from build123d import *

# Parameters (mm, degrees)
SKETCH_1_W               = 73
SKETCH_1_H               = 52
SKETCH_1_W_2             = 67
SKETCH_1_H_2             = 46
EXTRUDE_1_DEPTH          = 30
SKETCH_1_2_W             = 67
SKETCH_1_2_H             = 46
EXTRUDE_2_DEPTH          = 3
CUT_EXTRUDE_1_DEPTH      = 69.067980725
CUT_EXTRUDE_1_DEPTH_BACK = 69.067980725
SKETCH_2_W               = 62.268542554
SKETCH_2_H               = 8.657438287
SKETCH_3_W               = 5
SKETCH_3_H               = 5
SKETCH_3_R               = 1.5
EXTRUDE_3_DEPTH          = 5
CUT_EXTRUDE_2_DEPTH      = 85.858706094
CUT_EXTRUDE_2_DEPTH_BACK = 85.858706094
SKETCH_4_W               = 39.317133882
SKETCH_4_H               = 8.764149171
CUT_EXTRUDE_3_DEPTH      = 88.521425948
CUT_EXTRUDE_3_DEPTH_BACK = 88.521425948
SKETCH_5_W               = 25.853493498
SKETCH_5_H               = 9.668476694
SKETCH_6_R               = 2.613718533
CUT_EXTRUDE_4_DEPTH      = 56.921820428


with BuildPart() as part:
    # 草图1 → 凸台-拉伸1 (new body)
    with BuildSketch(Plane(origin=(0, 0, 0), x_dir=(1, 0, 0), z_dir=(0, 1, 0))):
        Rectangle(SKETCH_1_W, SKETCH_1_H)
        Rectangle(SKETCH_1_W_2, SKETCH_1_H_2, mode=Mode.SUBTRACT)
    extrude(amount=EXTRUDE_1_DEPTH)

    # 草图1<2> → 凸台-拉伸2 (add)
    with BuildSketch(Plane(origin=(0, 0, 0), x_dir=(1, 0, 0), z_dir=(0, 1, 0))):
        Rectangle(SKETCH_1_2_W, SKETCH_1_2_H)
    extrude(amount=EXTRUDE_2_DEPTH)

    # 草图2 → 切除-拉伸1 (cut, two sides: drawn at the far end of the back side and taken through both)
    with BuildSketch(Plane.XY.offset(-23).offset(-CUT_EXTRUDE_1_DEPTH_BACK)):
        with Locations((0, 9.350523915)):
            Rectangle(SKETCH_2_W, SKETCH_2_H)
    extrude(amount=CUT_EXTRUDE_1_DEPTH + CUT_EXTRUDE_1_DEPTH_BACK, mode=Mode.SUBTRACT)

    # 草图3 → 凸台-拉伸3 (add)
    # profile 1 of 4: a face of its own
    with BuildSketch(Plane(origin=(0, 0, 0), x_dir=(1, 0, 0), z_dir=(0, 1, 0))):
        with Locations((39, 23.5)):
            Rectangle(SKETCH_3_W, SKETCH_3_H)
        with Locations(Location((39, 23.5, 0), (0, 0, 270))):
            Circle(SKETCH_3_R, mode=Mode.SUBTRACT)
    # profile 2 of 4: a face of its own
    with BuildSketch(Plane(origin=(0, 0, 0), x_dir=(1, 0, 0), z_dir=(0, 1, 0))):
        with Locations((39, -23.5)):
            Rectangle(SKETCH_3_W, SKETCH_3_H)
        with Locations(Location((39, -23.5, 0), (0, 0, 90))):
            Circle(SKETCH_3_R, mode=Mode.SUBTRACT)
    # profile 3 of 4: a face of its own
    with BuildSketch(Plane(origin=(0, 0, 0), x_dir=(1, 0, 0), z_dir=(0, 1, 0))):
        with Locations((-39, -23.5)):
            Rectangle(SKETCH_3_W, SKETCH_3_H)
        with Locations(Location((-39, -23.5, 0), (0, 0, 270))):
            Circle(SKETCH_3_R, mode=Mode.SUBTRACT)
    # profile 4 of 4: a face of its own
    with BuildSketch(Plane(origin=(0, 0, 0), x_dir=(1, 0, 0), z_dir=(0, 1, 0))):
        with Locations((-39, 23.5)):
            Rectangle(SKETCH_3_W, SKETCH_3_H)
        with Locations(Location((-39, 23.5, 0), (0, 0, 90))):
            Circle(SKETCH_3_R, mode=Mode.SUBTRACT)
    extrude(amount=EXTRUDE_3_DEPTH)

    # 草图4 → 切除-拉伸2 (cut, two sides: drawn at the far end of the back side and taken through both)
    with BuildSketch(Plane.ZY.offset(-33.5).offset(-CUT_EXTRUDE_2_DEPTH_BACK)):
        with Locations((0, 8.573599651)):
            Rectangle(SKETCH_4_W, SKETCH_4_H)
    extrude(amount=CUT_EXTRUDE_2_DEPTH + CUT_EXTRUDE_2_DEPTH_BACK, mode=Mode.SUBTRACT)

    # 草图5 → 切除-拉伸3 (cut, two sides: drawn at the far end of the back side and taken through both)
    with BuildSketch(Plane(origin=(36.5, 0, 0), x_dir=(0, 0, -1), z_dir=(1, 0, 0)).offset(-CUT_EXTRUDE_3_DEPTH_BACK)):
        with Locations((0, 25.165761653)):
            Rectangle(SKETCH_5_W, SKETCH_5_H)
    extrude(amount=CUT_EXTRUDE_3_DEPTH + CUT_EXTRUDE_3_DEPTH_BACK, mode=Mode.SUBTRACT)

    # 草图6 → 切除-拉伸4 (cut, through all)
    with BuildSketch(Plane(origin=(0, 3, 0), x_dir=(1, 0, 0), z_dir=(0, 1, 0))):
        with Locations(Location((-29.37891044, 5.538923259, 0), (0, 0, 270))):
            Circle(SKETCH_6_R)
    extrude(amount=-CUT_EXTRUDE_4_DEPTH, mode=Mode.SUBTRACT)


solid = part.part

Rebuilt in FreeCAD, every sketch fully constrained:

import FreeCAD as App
import Part
import Sketcher

V = App.Vector
Q = App.Units.Quantity

doc = App.newDocument("Part")
body = doc.addObject("PartDesign::Body", "Body")

# Sketch on XZ plane
sketch1 = body.newObject("Sketcher::SketchObject", "Sketch")
sketch1.AttachmentSupport = (doc.getObject("XZ_Plane"), [""])
sketch1.MapMode = "FlatFace"
sketch1.addGeometry([
    Part.LineSegment(V(-36, -26, 0), V(-36, 26, 0)),  # 0
    Part.LineSegment(V(-36, 26, 0), V(36, 26, 0)),  # 1
    Part.LineSegment(V(36, 26, 0), V(36, -26, 0)),  # 2
    Part.LineSegment(V(36, -26, 0), V(-36, -26, 0)),  # 3
    Part.LineSegment(V(34, 23, 0), V(-34, 23, 0)),  # 4
    Part.LineSegment(V(-34, 23, 0), V(-34, -23, 0)),  # 5
    Part.LineSegment(V(-34, -23, 0), V(34, -23, 0)),  # 6
    Part.LineSegment(V(34, -23, 0), V(34, 23, 0)),  # 7
], False)
sketch1.addConstraint([
    Sketcher.Constraint("Coincident", 0, 2, 1, 1),
    Sketcher.Constraint("Coincident", 1, 2, 2, 1),
    Sketcher.Constraint("Coincident", 2, 2, 3, 1),
    Sketcher.Constraint("Coincident", 3, 2, 0, 1),
    Sketcher.Constraint("Coincident", 4, 2, 5, 1),
    Sketcher.Constraint("Coincident", 5, 2, 6, 1),
    Sketcher.Constraint("Coincident", 6, 2, 7, 1),
    Sketcher.Constraint("Coincident", 7, 2, 4, 1),
    Sketcher.Constraint("Vertical", 0),
    Sketcher.Constraint("Horizontal", 1),
    Sketcher.Constraint("Vertical", 2),
    Sketcher.Constraint("Horizontal", 3),
    Sketcher.Constraint("Horizontal", 4),
    Sketcher.Constraint("Vertical", 5),
    Sketcher.Constraint("Horizontal", 6),
    Sketcher.Constraint("Vertical", 7),
    Sketcher.Constraint("Symmetric", 0, 2, 2, 2, -1, 1),
    Sketcher.Constraint("Symmetric", 4, 2, 6, 2, -1, 1),
    Sketcher.Constraint("DistanceX", 1, 1, 1, 2, Q("73 mm")),
    Sketcher.Constraint("DistanceX", 4, 2, 4, 1, Q("67 mm")),
    Sketcher.Constraint("DistanceY", 0, 1, 0, 2, Q("52 mm")),
    Sketcher.Constraint("DistanceY", 5, 2, 5, 1, Q("46 mm")),
])
pad1 = body.newObject("PartDesign::Pad", "Pad")
pad1.Profile = sketch1
pad1.Length = 30
pad1.Reversed = True

# Sketch on XZ plane
sketch2 = body.newObject("Sketcher::SketchObject", "Sketch001")
sketch2.AttachmentSupport = (doc.getObject("XZ_Plane"), [""])
sketch2.MapMode = "FlatFace"
sketch2.addGeometry([
    Part.LineSegment(V(-34, -23, 0), V(-34, 23, 0)),
    Part.LineSegment(V(-34, 23, 0), V(34, 23, 0)),
    Part.LineSegment(V(34, 23, 0), V(34, -23, 0)),
    Part.LineSegment(V(34, -23, 0), V(-34, -23, 0)),
], False)
sketch2.addConstraint([
    Sketcher.Constraint("Coincident", 0, 2, 1, 1),
    Sketcher.Constraint("Coincident", 1, 2, 2, 1),
    Sketcher.Constraint("Coincident", 2, 2, 3, 1),
    Sketcher.Constraint("Coincident", 3, 2, 0, 1),
    Sketcher.Constraint("Vertical", 0),
    Sketcher.Constraint("Horizontal", 1),
    Sketcher.Constraint("Vertical", 2),
    Sketcher.Constraint("Horizontal", 3),
    Sketcher.Constraint("Symmetric", 0, 2, 2, 2, -1, 1),
    Sketcher.Constraint("DistanceX", 1, 1, 1, 2, Q("67 mm")),
    Sketcher.Constraint("DistanceY", 0, 1, 0, 2, Q("46 mm")),
])
pad2 = body.newObject("PartDesign::Pad", "Pad001")
pad2.Profile = sketch2
pad2.Length = 3
pad2.Reversed = True

# Sketch on XY plane
sketch3 = body.newObject("Sketcher::SketchObject", "Sketch002")
sketch3.AttachmentSupport = (doc.getObject("XY_Plane"), [""])
sketch3.MapMode = "FlatFace"
sketch3.AttachmentOffset = App.Placement(V(0, 0, -23), App.Rotation())
sketch3.addGeometry([
    Part.LineSegment(V(-31, 14, 0), V(-31, 5, 0)),
    Part.LineSegment(V(-31, 5, 0), V(31, 5, 0)),
    Part.LineSegment(V(31, 5, 0), V(31, 14, 0)),
    Part.LineSegment(V(31, 14, 0), V(-31, 14, 0)),
], False)
sketch3.addConstraint([
    Sketcher.Constraint("Coincident", 0, 2, 1, 1),
    Sketcher.Constraint("Coincident", 1, 2, 2, 1),
    Sketcher.Constraint("Coincident", 2, 2, 3, 1),
    Sketcher.Constraint("Coincident", 3, 2, 0, 1),
    Sketcher.Constraint("Vertical", 0),
    Sketcher.Constraint("Horizontal", 1),
    Sketcher.Constraint("Vertical", 2),
    Sketcher.Constraint("Horizontal", 3),
    Sketcher.Constraint("DistanceY", 0, 2, 0, 1, Q("8.657438 mm")),
    Sketcher.Constraint("DistanceX", 1, 1, 1, 2, Q("62.268543 mm")),
    Sketcher.Constraint("DistanceX", 0, 2, -1, 1, Q("31.134271 mm")),
    Sketcher.Constraint("DistanceY", -1, 1, 0, 2, Q("5.021805 mm")),
])
pocket1 = body.newObject("PartDesign::Pocket", "Pocket")
pocket1.Profile = sketch3
pocket1.Type = "ThroughAll"
pocket1.Midplane = True

# Sketch on XZ plane
sketch4 = body.newObject("Sketcher::SketchObject", "Sketch003")
sketch4.AttachmentSupport = (doc.getObject("XZ_Plane"), [""])
sketch4.MapMode = "FlatFace"
sketch4.addGeometry([
    Part.LineSegment(V(36.5, -26, 0), V(36.5, -21, 0)),  # 0
    Part.LineSegment(V(36.5, -21, 0), V(41.5, -21, 0)),  # 1
    Part.LineSegment(V(41.5, -21, 0), V(41.5, -26, 0)),  # 2
    Part.LineSegment(V(41.5, -26, 0), V(36.5, -26, 0)),  # 3
    Part.Circle(V(39, -23.5, 0), V(0, 0, 1), 1.5),  # 4
    Part.LineSegment(V(36.5, 21, 0), V(36.5, 26, 0)),  # 5
    Part.LineSegment(V(36.5, 26, 0), V(41.5, 26, 0)),  # 6
    Part.LineSegment(V(41.5, 26, 0), V(41.5, 21, 0)),  # 7
    Part.LineSegment(V(41.5, 21, 0), V(36.5, 21, 0)),  # 8
    Part.Circle(V(39, 23.5, 0), V(0, 0, 1), 1.5),  # 9
    Part.LineSegment(V(-41.5, 21, 0), V(-41.5, 26, 0)),  # 10
    Part.LineSegment(V(-41.5, 26, 0), V(-36.5, 26, 0)),  # 11
    Part.LineSegment(V(-36.5, 26, 0), V(-36.5, 21, 0)),  # 12
    Part.LineSegment(V(-36.5, 21, 0), V(-41.5, 21, 0)),  # 13
    Part.Circle(V(-39, 23.5, 0), V(0, 0, 1), 1.5),  # 14
    Part.LineSegment(V(-41.5, -26, 0), V(-41.5, -21, 0)),  # 15
    Part.LineSegment(V(-41.5, -21, 0), V(-36.5, -21, 0)),  # 16
    Part.LineSegment(V(-36.5, -21, 0), V(-36.5, -26, 0)),  # 17
    Part.LineSegment(V(-36.5, -26, 0), V(-41.5, -26, 0)),  # 18
    Part.Circle(V(-39, -23.5, 0), V(0, 0, 1), 1.5),  # 19
], False)
sketch4.addConstraint([
    Sketcher.Constraint("Coincident", 0, 2, 1, 1),
    Sketcher.Constraint("Coincident", 1, 2, 2, 1),
    Sketcher.Constraint("Coincident", 2, 2, 3, 1),
    Sketcher.Constraint("Coincident", 3, 2, 0, 1),
    Sketcher.Constraint("Coincident", 5, 2, 6, 1),
    Sketcher.Constraint("Coincident", 6, 2, 7, 1),
    Sketcher.Constraint("Coincident", 7, 2, 8, 1),
    Sketcher.Constraint("Coincident", 8, 2, 5, 1),
    Sketcher.Constraint("Coincident", 10, 2, 11, 1),
    Sketcher.Constraint("Coincident", 11, 2, 12, 1),
    Sketcher.Constraint("Coincident", 12, 2, 13, 1),
    Sketcher.Constraint("Coincident", 13, 2, 10, 1),
    Sketcher.Constraint("Coincident", 15, 2, 16, 1),
    Sketcher.Constraint("Coincident", 16, 2, 17, 1),
    Sketcher.Constraint("Coincident", 17, 2, 18, 1),
    Sketcher.Constraint("Coincident", 18, 2, 15, 1),
    Sketcher.Constraint("Vertical", 0),
    Sketcher.Constraint("Horizontal", 1),
    Sketcher.Constraint("Vertical", 2),
    Sketcher.Constraint("Horizontal", 3),
    Sketcher.Constraint("Vertical", 5),
    Sketcher.Constraint("Horizontal", 6),
    Sketcher.Constraint("Vertical", 7),
    Sketcher.Constraint("Horizontal", 8),
    Sketcher.Constraint("Vertical", 10),
    Sketcher.Constraint("Horizontal", 11),
    Sketcher.Constraint("Vertical", 12),
    Sketcher.Constraint("Horizontal", 13),
    Sketcher.Constraint("Vertical", 15),
    Sketcher.Constraint("Horizontal", 16),
    Sketcher.Constraint("Vertical", 17),
    Sketcher.Constraint("Horizontal", 18),
    Sketcher.Constraint("Equal", 4, 9),
    Sketcher.Constraint("Equal", 9, 14),
    Sketcher.Constraint("Equal", 14, 19),
    Sketcher.Constraint("Symmetric", 4, 3, 14, 3, -1, 1),
    Sketcher.Constraint("Symmetric", 9, 3, 19, 3, -1, 1),
    Sketcher.Constraint("Symmetric", 2, 2, 10, 2, -1, 1),
    Sketcher.Constraint("Symmetric", 0, 2, 12, 2, -1, 1),
    Sketcher.Constraint("Symmetric", 7, 2, 15, 2, -1, 1),
    Sketcher.Constraint("Symmetric", 5, 2, 17, 2, -1, 1),
    Sketcher.Constraint("Symmetric", 9, 3, 14, 3, -2),
    Sketcher.Constraint("Symmetric", 6, 2, 10, 2, -2),
    Sketcher.Constraint("Symmetric", 8, 2, 12, 2, -2),
    Sketcher.Constraint("Equal", 18, 0),
    Sketcher.Constraint("Diameter", 4, Q("3 mm")),
    Sketcher.Constraint("DistanceX", 1, 1, 1, 2, Q("5 mm")),
    Sketcher.Constraint("DistanceX", -1, 1, 4, 3, Q("39 mm")),
    Sketcher.Constraint("DistanceY", 0, 2, -1, 1, Q("21 mm")),
    Sketcher.Constraint("DistanceY", 4, 3, 9, 3, Q("47 mm")),
    Sketcher.Constraint("DistanceX", 10, 2, 5, 2, Q("78 mm")),
])
pad3 = body.newObject("PartDesign::Pad", "Pad002")
pad3.Profile = sketch4
pad3.Length = 5
pad3.Reversed = True

# Sketch on YZ plane
sketch5 = body.newObject("Sketcher::SketchObject", "Sketch004")
sketch5.AttachmentSupport = (doc.getObject("YZ_Plane"), [""])
sketch5.MapMode = "FlatFace"
sketch5.AttachmentOffset = App.Placement(V(0, 0, 33.5), App.Rotation())
sketch5.addGeometry([
    Part.LineSegment(V(13, -20, 0), V(4, -20, 0)),
    Part.LineSegment(V(4, -20, 0), V(4, 20, 0)),
    Part.LineSegment(V(4, 20, 0), V(13, 20, 0)),
    Part.LineSegment(V(13, 20, 0), V(13, -20, 0)),
], False)
sketch5.addConstraint([
    Sketcher.Constraint("Coincident", 0, 2, 1, 1),
    Sketcher.Constraint("Coincident", 1, 2, 2, 1),
    Sketcher.Constraint("Coincident", 2, 2, 3, 1),
    Sketcher.Constraint("Coincident", 3, 2, 0, 1),
    Sketcher.Constraint("Horizontal", 0),
    Sketcher.Constraint("Vertical", 1),
    Sketcher.Constraint("Horizontal", 2),
    Sketcher.Constraint("Vertical", 3),
    Sketcher.Constraint("DistanceX", 0, 2, 0, 1, Q("8.764149 mm")),
    Sketcher.Constraint("DistanceY", 1, 1, 1, 2, Q("39.317134 mm")),
    Sketcher.Constraint("DistanceX", -1, 1, 0, 2, Q("4.191525 mm")),
    Sketcher.Constraint("DistanceY", 0, 2, -1, 1, Q("19.658567 mm")),
])
pocket2 = body.newObject("PartDesign::Pocket", "Pocket001")
pocket2.Profile = sketch5
pocket2.Type = "ThroughAll"
pocket2.Midplane = True

# Sketch on YZ plane
sketch6 = body.newObject("Sketcher::SketchObject", "Sketch005")
sketch6.AttachmentSupport = (doc.getObject("YZ_Plane"), [""])
sketch6.MapMode = "FlatFace"
sketch6.AttachmentOffset = App.Placement(V(0, 0, 36.5), App.Rotation())
sketch6.addGeometry([
    Part.LineSegment(V(30, 13, 0), V(20, 13, 0)),
    Part.LineSegment(V(20, 13, 0), V(20, -13, 0)),
    Part.LineSegment(V(20, -13, 0), V(30, -13, 0)),
    Part.LineSegment(V(30, -13, 0), V(30, 13, 0)),
], False)
sketch6.addConstraint([
    Sketcher.Constraint("Coincident", 0, 2, 1, 1),
    Sketcher.Constraint("Coincident", 1, 2, 2, 1),
    Sketcher.Constraint("Coincident", 2, 2, 3, 1),
    Sketcher.Constraint("Coincident", 3, 2, 0, 1),
    Sketcher.Constraint("Horizontal", 0),
    Sketcher.Constraint("Vertical", 1),
    Sketcher.Constraint("Horizontal", 2),
    Sketcher.Constraint("Vertical", 3),
    Sketcher.Constraint("DistanceX", -1, 1, 2, 2, Q("30 mm")),
    Sketcher.Constraint("DistanceX", 0, 2, 0, 1, Q("9.668477 mm")),
    Sketcher.Constraint("DistanceY", 1, 2, 1, 1, Q("25.853493 mm")),
    Sketcher.Constraint("DistanceY", -1, 1, 0, 2, Q("12.926747 mm")),
])
pocket3 = body.newObject("PartDesign::Pocket", "Pocket002")
pocket3.Profile = sketch6
pocket3.Type = "ThroughAll"
pocket3.Midplane = True

# Sketch on XZ plane
sketch7 = body.newObject("Sketcher::SketchObject", "Sketch006")
sketch7.AttachmentSupport = (doc.getObject("XZ_Plane"), [""])
sketch7.MapMode = "FlatFace"
sketch7.AttachmentOffset = App.Placement(V(0, 0, -3), App.Rotation())
sketch7.addGeometry(Part.Circle(V(-29.4, -5.5, 0), V(0, 0, 1), 2.6), False)
sketch7.addConstraint([
    Sketcher.Constraint("Diameter", 0, Q("5.227437 mm")),
    Sketcher.Constraint("DistanceX", 0, 3, -1, 1, Q("29.37891 mm")),
    Sketcher.Constraint("DistanceY", 0, 3, -1, 1, Q("5.538923 mm")),
])
pocket4 = body.newObject("PartDesign::Pocket", "Pocket003")
pocket4.Profile = sketch7
pocket4.Type = "ThroughAll"
pocket4.Reversed = True

doc.recompute()
